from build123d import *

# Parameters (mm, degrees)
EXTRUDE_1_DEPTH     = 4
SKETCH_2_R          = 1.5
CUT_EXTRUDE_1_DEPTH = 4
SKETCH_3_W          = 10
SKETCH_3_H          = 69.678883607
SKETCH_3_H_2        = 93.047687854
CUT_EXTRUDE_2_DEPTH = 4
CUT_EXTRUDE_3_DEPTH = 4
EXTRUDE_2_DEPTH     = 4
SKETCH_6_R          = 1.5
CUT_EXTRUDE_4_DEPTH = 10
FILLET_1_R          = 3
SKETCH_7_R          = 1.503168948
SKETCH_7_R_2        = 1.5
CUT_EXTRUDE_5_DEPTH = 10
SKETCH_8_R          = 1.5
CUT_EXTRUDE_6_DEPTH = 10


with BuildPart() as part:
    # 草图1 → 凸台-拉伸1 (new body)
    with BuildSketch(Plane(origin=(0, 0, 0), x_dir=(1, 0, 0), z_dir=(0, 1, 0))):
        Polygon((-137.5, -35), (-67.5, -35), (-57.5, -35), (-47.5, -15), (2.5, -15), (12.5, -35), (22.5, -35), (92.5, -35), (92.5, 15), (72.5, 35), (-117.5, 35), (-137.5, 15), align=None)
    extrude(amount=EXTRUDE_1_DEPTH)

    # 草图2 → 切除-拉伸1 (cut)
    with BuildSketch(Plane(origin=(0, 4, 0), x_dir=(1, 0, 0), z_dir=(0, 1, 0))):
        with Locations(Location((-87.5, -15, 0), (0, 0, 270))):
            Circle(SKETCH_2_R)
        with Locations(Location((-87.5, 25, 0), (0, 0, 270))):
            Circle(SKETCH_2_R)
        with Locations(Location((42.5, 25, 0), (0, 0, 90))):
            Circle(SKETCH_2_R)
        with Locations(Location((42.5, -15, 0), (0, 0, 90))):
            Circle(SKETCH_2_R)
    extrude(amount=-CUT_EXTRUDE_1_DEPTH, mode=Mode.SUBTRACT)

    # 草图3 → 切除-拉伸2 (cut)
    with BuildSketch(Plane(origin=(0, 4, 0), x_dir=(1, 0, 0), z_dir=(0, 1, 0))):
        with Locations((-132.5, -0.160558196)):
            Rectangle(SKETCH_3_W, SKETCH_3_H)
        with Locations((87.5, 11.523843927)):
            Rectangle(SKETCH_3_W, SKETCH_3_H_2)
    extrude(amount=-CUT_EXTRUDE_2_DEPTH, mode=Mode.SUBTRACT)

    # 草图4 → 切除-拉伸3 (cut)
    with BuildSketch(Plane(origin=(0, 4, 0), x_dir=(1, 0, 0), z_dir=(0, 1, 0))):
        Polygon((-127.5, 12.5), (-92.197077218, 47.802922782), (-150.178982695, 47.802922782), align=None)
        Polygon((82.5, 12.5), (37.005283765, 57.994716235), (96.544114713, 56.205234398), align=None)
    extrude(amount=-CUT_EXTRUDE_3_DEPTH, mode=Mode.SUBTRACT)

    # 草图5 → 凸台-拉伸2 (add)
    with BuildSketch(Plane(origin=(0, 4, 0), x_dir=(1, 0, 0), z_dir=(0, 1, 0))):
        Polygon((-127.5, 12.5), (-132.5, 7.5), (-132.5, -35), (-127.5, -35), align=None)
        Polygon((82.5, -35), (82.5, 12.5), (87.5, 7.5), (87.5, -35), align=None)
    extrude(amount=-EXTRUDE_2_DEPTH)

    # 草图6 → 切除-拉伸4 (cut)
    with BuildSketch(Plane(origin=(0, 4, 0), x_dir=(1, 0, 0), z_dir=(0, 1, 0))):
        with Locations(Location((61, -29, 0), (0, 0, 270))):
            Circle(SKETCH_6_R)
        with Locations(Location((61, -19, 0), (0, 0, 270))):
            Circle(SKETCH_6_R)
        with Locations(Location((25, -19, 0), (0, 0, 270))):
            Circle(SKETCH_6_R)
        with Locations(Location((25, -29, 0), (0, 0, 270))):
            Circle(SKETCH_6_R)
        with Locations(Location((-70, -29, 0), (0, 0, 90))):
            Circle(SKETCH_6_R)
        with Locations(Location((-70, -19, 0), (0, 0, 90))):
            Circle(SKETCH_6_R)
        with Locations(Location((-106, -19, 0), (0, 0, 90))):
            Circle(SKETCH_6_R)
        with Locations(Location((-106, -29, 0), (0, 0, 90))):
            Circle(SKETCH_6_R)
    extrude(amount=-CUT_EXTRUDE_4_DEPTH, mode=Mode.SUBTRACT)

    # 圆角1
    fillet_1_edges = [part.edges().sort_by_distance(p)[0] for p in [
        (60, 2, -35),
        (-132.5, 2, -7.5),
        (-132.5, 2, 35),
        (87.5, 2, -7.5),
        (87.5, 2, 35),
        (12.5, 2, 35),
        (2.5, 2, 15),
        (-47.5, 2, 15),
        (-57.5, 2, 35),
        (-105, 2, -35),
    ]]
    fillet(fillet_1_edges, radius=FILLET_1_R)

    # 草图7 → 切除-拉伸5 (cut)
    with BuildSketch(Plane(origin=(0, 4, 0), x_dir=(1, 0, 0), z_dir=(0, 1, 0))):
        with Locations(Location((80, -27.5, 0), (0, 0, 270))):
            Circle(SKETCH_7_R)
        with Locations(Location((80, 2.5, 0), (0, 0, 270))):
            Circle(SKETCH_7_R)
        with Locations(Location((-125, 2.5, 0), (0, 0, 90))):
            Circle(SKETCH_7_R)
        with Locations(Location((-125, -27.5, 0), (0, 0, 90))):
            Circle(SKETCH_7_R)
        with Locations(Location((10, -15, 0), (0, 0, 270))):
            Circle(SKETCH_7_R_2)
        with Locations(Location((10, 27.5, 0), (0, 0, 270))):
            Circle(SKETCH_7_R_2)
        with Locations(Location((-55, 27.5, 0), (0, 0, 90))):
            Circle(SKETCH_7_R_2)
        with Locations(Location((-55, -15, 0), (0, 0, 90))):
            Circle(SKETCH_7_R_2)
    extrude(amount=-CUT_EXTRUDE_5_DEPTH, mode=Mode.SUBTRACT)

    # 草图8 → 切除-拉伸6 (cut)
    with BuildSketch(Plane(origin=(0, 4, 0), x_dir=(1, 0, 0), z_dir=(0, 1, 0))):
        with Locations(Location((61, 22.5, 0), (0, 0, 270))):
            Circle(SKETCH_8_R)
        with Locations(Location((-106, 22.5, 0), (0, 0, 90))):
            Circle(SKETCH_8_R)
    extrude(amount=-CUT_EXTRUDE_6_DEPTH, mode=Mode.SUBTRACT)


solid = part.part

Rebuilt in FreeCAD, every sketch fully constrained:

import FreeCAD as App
import Part
import Sketcher

V = App.Vector
Q = App.Units.Quantity


def edges_at(feature, points):
    """Names of the edges that pass closest to the given points."""
    edges = feature.Shape.Edges
    near = lambda p: min(range(len(edges)), key=lambda i: edges[i].distToShape(Part.Vertex(*p))[0])
    return sorted({f"Edge{near(p) + 1}" for p in points})

doc = App.newDocument("Part")
body = doc.addObject("PartDesign::Body", "Body")

sketch1 = body.newObject("Sketcher::SketchObject", "Sketch")
sketch1.AttachmentSupport = (doc.getObject("XZ_Plane"), [""])
sketch1.MapMode = "FlatFace"
sketch1.addGeometry([
    Part.LineSegment(V(-138, 35, 0), V(-58, 35, 0)),
    Part.LineSegment(V(-58, 35, 0), V(-48, 15, 0)),
    Part.LineSegment(V(-48, 15, 0), V(2, 15, 0)),
    Part.LineSegment(V(2, 15, 0), V(12, 35, 0)),
    Part.LineSegment(V(12, 35, 0), V(92, 35, 0)),
    Part.LineSegment(V(92, 35, 0), V(92, -15, 0)),
    Part.LineSegment(V(92, -15, 0), V(72, -35, 0)),
    Part.LineSegment(V(72, -35, 0), V(-118, -35, 0)),
    Part.LineSegment(V(-118, -35, 0), V(-138, -15, 0)),
    Part.LineSegment(V(-138, -15, 0), V(-138, 35, 0)),
], False)
sketch1.addConstraint([
    Sketcher.Constraint("Coincident", 0, 2, 1, 1),
    Sketcher.Constraint("Coincident", 1, 2, 2, 1),
    Sketcher.Constraint("Coincident", 2, 2, 3, 1),
    Sketcher.Constraint("Coincident", 3, 2, 4, 1),
    Sketcher.Constraint("Coincident", 4, 2, 5, 1),
    Sketcher.Constraint("Coincident", 5, 2, 6, 1),
    Sketcher.Constraint("Coincident", 6, 2, 7, 1),
    Sketcher.Constraint("Coincident", 7, 2, 8, 1),
    Sketcher.Constraint("Coincident", 8, 2, 9, 1),
    Sketcher.Constraint("Coincident", 9, 2, 0, 1),
    Sketcher.Constraint("Horizontal", 0),
    Sketcher.Constraint("Horizontal", 2),
    Sketcher.Constraint("Horizontal", 4),
    Sketcher.Constraint("Vertical", 5),
    Sketcher.Constraint("Horizontal", 7),
    Sketcher.Constraint("Vertical", 9),
    Sketcher.Constraint("Perpendicular", 6, 8),
    Sketcher.Constraint("Horizontal", 0, 2, 3, 2),
    Sketcher.Constraint("Horizontal", 5, 2, 8, 2),
    Sketcher.Constraint("Equal", 0, 4),
    Sketcher.Constraint("Equal", 2, 5),
    Sketcher.Constraint("Equal", 1, 3),
    Sketcher.Constraint("Equal", 6, 8),
    Sketcher.Constraint("DistanceX", 0, 1, 0, 2, 80.0),
    Sketcher.Constraint("DistanceX", 2, 1, 2, 2, 50.0),
    Sketcher.Constraint("DistanceX", 7, 2, 7, 1, 190.0),
    Sketcher.Constraint("DistanceY", -1, 1, 0, 2, 35.0),
    Sketcher.Constraint("DistanceY", -1, 1, 1, 2, 15.0),
    Sketcher.Constraint("DistanceY", 6, 2, -1, 1, 35.0),
    Sketcher.Constraint("DistanceX", 0, 2, -1, 1, 57.5),
])
pad1 = body.newObject("PartDesign::Pad", "Pad")
pad1.Profile = sketch1
pad1.Length = 4
pad1.Reversed = True

sketch2 = body.newObject("Sketcher::SketchObject", "Sketch001")
sketch2.AttachmentSupport = (doc.getObject("XZ_Plane"), [""])
sketch2.MapMode = "FlatFace"
sketch2.AttachmentOffset = App.Placement(V(0, 0, -4), App.Rotation())
sketch2.addGeometry([
    Part.Circle(V(-87.5, 15, 0), V(0, 0, 1), 1.5),
    Part.Circle(V(-87.5, -25, 0), V(0, 0, 1), 1.5),
    Part.Circle(V(42.5, -25, 0), V(0, 0, 1), 1.5),
    Part.Circle(V(42.5, 15, 0), V(0, 0, 1), 1.5),
], False)
sketch2.addConstraint([
    Sketcher.Constraint("Equal", 0, 1),
    Sketcher.Constraint("Equal", 1, 2),
    Sketcher.Constraint("Equal", 2, 3),
    Sketcher.Constraint("Horizontal", 1, 3, 2, 3),
    Sketcher.Constraint("Horizontal", 0, 3, 3, 3),
    Sketcher.Constraint("Vertical", 0, 3, 1, 3),
    Sketcher.Constraint("Vertical", 2, 3, 3, 3),
    Sketcher.Constraint("Diameter", 0, 3.0),
    Sketcher.Constraint("DistanceY", -1, 1, 0, 3, 15.0),
    Sketcher.Constraint("DistanceY", 1, 3, -1, 1, 25.0),
    Sketcher.Constraint("DistanceX", 1, 3, 2, 3, 130.0),
    Sketcher.Constraint("DistanceX", 0, 3, -1, 1, 87.5),
])
pocket1 = body.newObject("PartDesign::Pocket", "Pocket")
pocket1.Profile = sketch2
pocket1.Length = 4
pocket1.Reversed = True

sketch3 = body.newObject("Sketcher::SketchObject", "Sketch002")
sketch3.AttachmentSupport = (doc.getObject("XZ_Plane"), [""])
sketch3.MapMode = "FlatFace"
sketch3.AttachmentOffset = App.Placement(V(0, 0, -4), App.Rotation())
sketch3.addGeometry([
    Part.LineSegment(V(-138, -35, 0), V(-138, 35, 0)),
    Part.LineSegment(V(-138, 35, 0), V(-128, 35, 0)),
    Part.LineSegment(V(-128, 35, 0), V(-128, -35, 0)),
    Part.LineSegment(V(-128, -35, 0), V(-138, -35, 0)),
    Part.LineSegment(V(82, -58, 0), V(82, 35, 0)),
    Part.LineSegment(V(82, 35, 0), V(92, 35, 0)),
    Part.LineSegment(V(92, 35, 0), V(92, -58, 0)),
    Part.LineSegment(V(92, -58, 0), V(82, -58, 0)),
], False)
sketch3.addConstraint([
    Sketcher.Constraint("Coincident", 0, 2, 1, 1),
    Sketcher.Constraint("Coincident", 1, 2, 2, 1),
    Sketcher.Constraint("Coincident", 2, 2, 3, 1),
    Sketcher.Constraint("Coincident", 3, 2, 0, 1),
    Sketcher.Constraint("Coincident", 4, 2, 5, 1),
    Sketcher.Constraint("Coincident", 5, 2, 6, 1),
    Sketcher.Constraint("Coincident", 6, 2, 7, 1),
    Sketcher.Constraint("Coincident", 7, 2, 4, 1),
    Sketcher.Constraint("Vertical", 0),
    Sketcher.Constraint("Horizontal", 1),
    Sketcher.Constraint("Vertical", 2),
    Sketcher.Constraint("Horizontal", 3),
    Sketcher.Constraint("Vertical", 4),
    Sketcher.Constraint("Horizontal", 5),
    Sketcher.Constraint("Vertical", 6),
    Sketcher.Constraint("Horizontal", 7),
    Sketcher.Constraint("Horizontal", 1, 2, 4, 2),
    Sketcher.Constraint("Equal", 3, 5),
    Sketcher.Constraint("DistanceX", 1, 1, 1, 2, 10.0),
    Sketcher.Constraint("DistanceY", -1, 1, 0, 2, 35.0),
    Sketcher.Constraint("DistanceX", 1, 2, 4, 2, 210.0),
    Sketcher.Constraint("DistanceX", 0, 2, -1, 1, 137.5),
    Sketcher.Constraint("DistanceY", 0, 1, 0, 2, 69.678884),
    Sketcher.Constraint("DistanceY", 4, 1, 4, 2, 93.047688),
])
pocket2 = body.newObject("PartDesign::Pocket", "Pocket001")
pocket2.Profile = sketch3
pocket2.Length = 4
pocket2.Reversed = True

sketch4 = body.newObject("Sketcher::SketchObject", "Sketch003")
sketch4.AttachmentSupport = (doc.getObject("XZ_Plane"), [""])
sketch4.MapMode = "FlatFace"
sketch4.AttachmentOffset = App.Placement(V(0, 0, -4), App.Rotation())
sketch4.addGeometry([
    Part.LineSegment(V(-128, -12, 0), V(-92, -48, 0)),
    Part.LineSegment(V(-92, -48, 0), V(-150, -48, 0)),
    Part.LineSegment(V(-150, -48, 0), V(-128, -12, 0)),
    Part.LineSegment(V(37, -58, 0), V(82, -12, 0)),
    Part.LineSegment(V(82, -12, 0), V(97, -56, 0)),
    Part.LineSegment(V(97, -56, 0), V(37, -58, 0)),
], False)
sketch4.addConstraint([
    Sketcher.Constraint("Coincident", 0, 2, 1, 1),
    Sketcher.Constraint("Coincident", 1, 2, 2, 1),
    Sketcher.Constraint("Coincident", 2, 2, 0, 1),
    Sketcher.Constraint("Coincident", 3, 2, 4, 1),
    Sketcher.Constraint("Coincident", 4, 2, 5, 1),
    Sketcher.Constraint("Coincident", 5, 2, 3, 1),
    Sketcher.Constraint("Horizontal", 1),
    Sketcher.Constraint("Perpendicular", 0, 3),
    Sketcher.Constraint("Horizontal", 2, 2, 3, 2),
    Sketcher.Constraint("Angle", 0, Q("-45 deg")),
    Sketcher.Constraint("DistanceX", 2, 2, 3, 2, 210.0),
    Sketcher.Constraint("DistanceX", 2, 2, -1, 1, 127.5),
    Sketcher.Constraint("DistanceY", 2, 2, -1, 1, 12.5),
    Sketcher.Constraint("Distance", 4, 45.90626),
    Sketcher.Constraint("DistanceX", 1, 2, 1, 1, 57.981905),
    Sketcher.Constraint("DistanceX", 0, 2, 4, 2, 188.741192),
    Sketcher.Constraint("DistanceY", 4, 2, 0, 2, 8.402312),
    Sketcher.Constraint("DistanceX", 5, 2, 4, 2, 59.538831),
])
pocket3 = body.newObject("PartDesign::Pocket", "Pocket002")
pocket3.Profile = sketch4
pocket3.Length = 4
pocket3.Reversed = True

sketch5 = body.newObject("Sketcher::SketchObject", "Sketch004")
sketch5.AttachmentSupport = (doc.getObject("XZ_Plane"), [""])
sketch5.MapMode = "FlatFace"
sketch5.AttachmentOffset = App.Placement(V(0, 0, -4), App.Rotation())
sketch5.addGeometry([
    Part.LineSegment(V(-128, -12, 0), V(-132, -8, 0)),
    Part.LineSegment(V(-132, -8, 0), V(-132, 35, 0)),
    Part.LineSegment(V(-132, 35, 0), V(-128, 35, 0)),
    Part.LineSegment(V(-128, 35, 0), V(-128, -12, 0)),
    Part.LineSegment(V(82, -12, 0), V(82, 35, 0)),
    Part.LineSegment(V(82, 35, 0), V(88, 35, 0)),
    Part.LineSegment(V(88, 35, 0), V(88, -8, 0)),
    Part.LineSegment(V(88, -8, 0), V(82, -12, 0)),
], False)
sketch5.addConstraint([
    Sketcher.Constraint("Coincident", 0, 2, 1, 1),
    Sketcher.Constraint("Coincident", 1, 2, 2, 1),
    Sketcher.Constraint("Coincident", 2, 2, 3, 1),
    Sketcher.Constraint("Coincident", 3, 2, 0, 1),
    Sketcher.Constraint("Coincident", 4, 2, 5, 1),
    Sketcher.Constraint("Coincident", 5, 2, 6, 1),
    Sketcher.Constraint("Coincident", 6, 2, 7, 1),
    Sketcher.Constraint("Coincident", 7, 2, 4, 1),
    Sketcher.Constraint("Vertical", 1),
    Sketcher.Constraint("Horizontal", 2),
    Sketcher.Constraint("Vertical", 3),
    Sketcher.Constraint("Vertical", 4),
    Sketcher.Constraint("Horizontal", 5),
    Sketcher.Constraint("Vertical", 6),
    Sketcher.Constraint("Perpendicular", 0, 7),
    Sketcher.Constraint("Horizontal", 2, 2, 4, 2),
    Sketcher.Constraint("Horizontal", 0, 2, 6, 2),
    Sketcher.Constraint("Horizontal", 3, 2, 7, 2),
    Sketcher.Constraint("Equal", 2, 5),
    Sketcher.Constraint("DistanceX", 2, 1, 2, 2, 5.0),
    Sketcher.Constraint("DistanceY", 1, 1, 1, 2, 42.5),
    Sketcher.Constraint("DistanceY", -1, 1, 1, 2, 35.0),
    Sketcher.Constraint("DistanceX", 2, 2, 4, 2, 210.0),
    Sketcher.Constraint("DistanceX", 0, 2, -1, 1, 132.5),
])
pad2 = body.newObject("PartDesign::Pad", "Pad001")
pad2.Profile = sketch5
pad2.Length = 4

sketch6 = body.newObject("Sketcher::SketchObject", "Sketch005")
sketch6.AttachmentSupport = (doc.getObject("XZ_Plane"), [""])
sketch6.MapMode = "FlatFace"
sketch6.AttachmentOffset = App.Placement(V(0, 0, -4), App.Rotation())
sketch6.addGeometry([
    Part.Circle(V(61, 29, 0), V(0, 0, 1), 1.5),
    Part.Circle(V(61, 19, 0), V(0, 0, 1), 1.5),
    Part.Circle(V(25, 19, 0), V(0, 0, 1), 1.5),
    Part.Circle(V(25, 29, 0), V(0, 0, 1), 1.5),
    Part.Circle(V(-70, 29, 0), V(0, 0, 1), 1.5),
    Part.Circle(V(-70, 19, 0), V(0, 0, 1), 1.5),
    Part.Circle(V(-106, 19, 0), V(0, 0, 1), 1.5),
    Part.Circle(V(-106, 29, 0), V(0, 0, 1), 1.5),
], False)
sketch6.addConstraint([
    Sketcher.Constraint("Equal", 0, 1),
    Sketcher.Constraint("Equal", 1, 2),
    Sketcher.Constraint("Equal", 2, 3),
    Sketcher.Constraint("Equal", 3, 4),
    Sketcher.Constraint("Equal", 4, 5),
    Sketcher.Constraint("Equal", 5, 6),
    Sketcher.Constraint("Equal", 6, 7),
    Sketcher.Constraint("Horizontal", 1, 3, 2, 3),
    Sketcher.Constraint("Horizontal", 0, 3, 3, 3),
    Sketcher.Constraint("Horizontal", 3, 3, 4, 3),
    Sketcher.Constraint("Horizontal", 2, 3, 5, 3),
    Sketcher.Constraint("Horizontal", 5, 3, 6, 3),
    Sketcher.Constraint("Horizontal", 4, 3, 7, 3),
    Sketcher.Constraint("Vertical", 0, 3, 1, 3),
    Sketcher.Constraint("Vertical", 2, 3, 3, 3),
    Sketcher.Constraint("Vertical", 4, 3, 5, 3),
    Sketcher.Constraint("Vertical", 6, 3, 7, 3),
    Sketcher.Constraint("Diameter", 0, 3.0),
    Sketcher.Constraint("DistanceX", -1, 1, 0, 3, 61.0),
    Sketcher.Constraint("DistanceY", -1, 1, 0, 3, 29.0),
    Sketcher.Constraint("DistanceY", -1, 1, 1, 3, 19.0),
    Sketcher.Constraint("DistanceX", -1, 1, 2, 3, 25.0),
    Sketcher.Constraint("DistanceX", 4, 3, -1, 1, 70.0),
    Sketcher.Constraint("DistanceX", 6, 3, -1, 1, 106.0),
])
pocket4 = body.newObject("PartDesign::Pocket", "Pocket003")
pocket4.Profile = sketch6
pocket4.Length = 10
pocket4.Reversed = True
doc.recompute()

fillet = body.newObject("PartDesign::Fillet", "Fillet")
fillet.Base = (pocket4, edges_at(pocket4, [
    (60, 2, -35),
    (-132.5, 2, -7.5),
    (-132.5, 2, 35),
    (87.5, 2, -7.5),
    (87.5, 2, 35),
    (12.5, 2, 35),
    (2.5, 2, 15),
    (-47.5, 2, 15),
    (-57.5, 2, 35),
    (-105, 2, -35),
]))
fillet.Radius = 3

sketch7 = body.newObject("Sketcher::SketchObject", "Sketch006")
sketch7.AttachmentSupport = (doc.getObject("XZ_Plane"), [""])
sketch7.MapMode = "FlatFace"
sketch7.AttachmentOffset = App.Placement(V(0, 0, -4), App.Rotation())
sketch7.addGeometry([
    Part.Circle(V(80, 27.5, 0), V(0, 0, 1), 1.5),
    Part.Circle(V(80, -2.5, 0), V(0, 0, 1), 1.5),
    Part.Circle(V(-125, -2.5, 0), V(0, 0, 1), 1.5),
    Part.Circle(V(-125, 27.5, 0), V(0, 0, 1), 1.5),
    Part.Circle(V(10, 15, 0), V(0, 0, 1), 1.5),
    Part.Circle(V(10, -27.5, 0), V(0, 0, 1), 1.5),
    Part.Circle(V(-55, -27.5, 0), V(0, 0, 1), 1.5),
    Part.Circle(V(-55, 15, 0), V(0, 0, 1), 1.5),
], False)
sketch7.addConstraint([
    Sketcher.Constraint("Equal", 0, 1),
    Sketcher.Constraint("Equal", 1, 2),
    Sketcher.Constraint("Equal", 2, 3),
    Sketcher.Constraint("Equal", 4, 5),
    Sketcher.Constraint("Equal", 5, 6),
    Sketcher.Constraint("Equal", 6, 7),
    Sketcher.Constraint("Horizontal", 1, 3, 2, 3),
    Sketcher.Constraint("Horizontal", 0, 3, 3, 3),
    Sketcher.Constraint("Horizontal", 5, 3, 6, 3),
    Sketcher.Constraint("Horizontal", 4, 3, 7, 3),
    Sketcher.Constraint("Vertical", 0, 3, 1, 3),
    Sketcher.Constraint("Vertical", 2, 3, 3, 3),
    Sketcher.Constraint("Vertical", 4, 3, 5, 3),
    Sketcher.Constraint("Vertical", 6, 3, 7, 3),
    Sketcher.Constraint("Diameter", 4, 3.0),
    Sketcher.Constraint("DistanceX", -1, 1, 0, 3, 80.0),
    Sketcher.Constraint("DistanceX", 2, 3, -1, 1, 125.0),
    Sketcher.Constraint("DistanceX", -1, 1, 4, 3, 10.0),
    Sketcher.Constraint("DistanceY", -1, 1, 4, 3, 15.0),
    Sketcher.Constraint("DistanceX", 6, 3, -1, 1, 55.0),
    Sketcher.Constraint("DistanceY", 1, 3, 0, 3, 30.0),
    Sketcher.Constraint("DistanceY", 5, 3, 1, 3, 25.0),
    Sketcher.Constraint("DistanceY", -1, 1, 0, 3, 27.5),
    Sketcher.Constraint("Diameter", 0, 3.006338),
])
pocket5 = body.newObject("PartDesign::Pocket", "Pocket004")
pocket5.Profile = sketch7
pocket5.Length = 10
pocket5.Reversed = True

sketch8 = body.newObject("Sketcher::SketchObject", "Sketch007")
sketch8.AttachmentSupport = (doc.getObject("XZ_Plane"), [""])
sketch8.MapMode = "FlatFace"
sketch8.AttachmentOffset = App.Placement(V(0, 0, -4), App.Rotation())
sketch8.addGeometry([
    Part.Circle(V(61, -22.5, 0), V(0, 0, 1), 1.5),
    Part.Circle(V(-106, -22.5, 0), V(0, 0, 1), 1.5),
], False)
sketch8.addConstraint([
    Sketcher.Constraint("Equal", 0, 1),
    Sketcher.Constraint("Horizontal", 0, 3, 1, 3),
    Sketcher.Constraint("Diameter", 0, 3.0),
    Sketcher.Constraint("DistanceX", -1, 1, 0, 3, 61.0),
    Sketcher.Constraint("DistanceX", 1, 3, -1, 1, 106.0),
    Sketcher.Constraint("DistanceY", 0, 3, -1, 1, 22.5),
])
pocket6 = body.newObject("PartDesign::Pocket", "Pocket005")
pocket6.Profile = sketch8
pocket6.Length = 10
pocket6.Reversed = True

doc.recompute()
